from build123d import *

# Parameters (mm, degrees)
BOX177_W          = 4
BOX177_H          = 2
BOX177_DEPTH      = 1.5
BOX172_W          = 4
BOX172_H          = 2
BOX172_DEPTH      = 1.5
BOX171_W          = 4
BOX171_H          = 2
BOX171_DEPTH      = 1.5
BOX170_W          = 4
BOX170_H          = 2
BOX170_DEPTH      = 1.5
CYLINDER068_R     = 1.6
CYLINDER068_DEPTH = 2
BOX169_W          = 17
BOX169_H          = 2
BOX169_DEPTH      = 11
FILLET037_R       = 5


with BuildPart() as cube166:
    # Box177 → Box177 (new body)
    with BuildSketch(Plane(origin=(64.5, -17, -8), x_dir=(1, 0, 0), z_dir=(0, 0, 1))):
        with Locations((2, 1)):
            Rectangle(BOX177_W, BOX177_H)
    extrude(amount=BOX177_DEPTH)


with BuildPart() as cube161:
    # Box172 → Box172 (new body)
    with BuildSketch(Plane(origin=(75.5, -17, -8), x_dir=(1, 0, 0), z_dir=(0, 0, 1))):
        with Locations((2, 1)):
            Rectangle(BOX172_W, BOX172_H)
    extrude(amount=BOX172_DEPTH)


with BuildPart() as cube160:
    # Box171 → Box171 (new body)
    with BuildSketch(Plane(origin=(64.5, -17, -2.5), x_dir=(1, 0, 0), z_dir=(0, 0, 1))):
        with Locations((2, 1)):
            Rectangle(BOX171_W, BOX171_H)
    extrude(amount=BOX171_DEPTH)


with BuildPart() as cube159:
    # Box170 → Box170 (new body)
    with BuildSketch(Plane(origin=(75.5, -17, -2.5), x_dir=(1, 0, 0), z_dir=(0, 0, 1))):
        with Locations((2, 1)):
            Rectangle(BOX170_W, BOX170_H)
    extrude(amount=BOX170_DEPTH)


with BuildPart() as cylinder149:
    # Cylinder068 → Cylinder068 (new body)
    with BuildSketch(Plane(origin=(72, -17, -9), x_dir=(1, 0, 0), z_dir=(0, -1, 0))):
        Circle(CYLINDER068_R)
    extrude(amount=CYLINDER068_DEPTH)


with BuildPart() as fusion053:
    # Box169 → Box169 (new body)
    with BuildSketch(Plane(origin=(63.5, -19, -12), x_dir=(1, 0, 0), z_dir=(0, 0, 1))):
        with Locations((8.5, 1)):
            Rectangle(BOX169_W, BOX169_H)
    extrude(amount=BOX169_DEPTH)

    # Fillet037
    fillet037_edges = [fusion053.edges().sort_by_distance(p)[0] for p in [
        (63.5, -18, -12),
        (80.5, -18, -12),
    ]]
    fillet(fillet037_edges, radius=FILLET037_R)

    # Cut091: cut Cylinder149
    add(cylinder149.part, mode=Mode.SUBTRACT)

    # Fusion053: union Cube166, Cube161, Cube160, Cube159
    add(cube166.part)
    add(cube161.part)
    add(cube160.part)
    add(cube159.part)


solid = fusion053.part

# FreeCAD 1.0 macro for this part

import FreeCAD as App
import Part
import Sketcher
from FreeCAD import Vector
Q = App.Units.Quantity


def edges_at(feature, points):
    """Names of the edges that pass closest to the given points."""
    edges = feature.Shape.Edges
    near = lambda p: min(range(len(edges)), key=lambda i: edges[i].distToShape(Part.Vertex(*p))[0])
    return sorted({f"Edge{near(p) + 1}" for p in points})


def add_polygon(sketch, points):
    """Adds a closed chain of lines whose ends are joined by coincident constraints."""
    first, n = sketch.GeometryCount, len(points)
    for a, b in zip(points, points[1:] + points[:1]):
        sketch.addGeometry(Part.LineSegment(App.Vector(*a, 0), App.Vector(*b, 0)), False)
    for i in range(n):
        sketch.addConstraint(Sketcher.Constraint("Coincident", first + i, 2, first + (i + 1) % n, 1))

doc = App.newDocument("Part")
body = doc.addObject("PartDesign::Body", "Body")

sketch1 = doc.addObject("Sketcher::SketchObject", "Sketch")
body.addObject(sketch1)
sketch1.AttachmentSupport = (doc.XY_Plane, [""])
sketch1.MapMode = "FlatFace"
sketch1.AttachmentOffset = App.Placement(Vector(0, 0, -8), App.Rotation())
add_polygon(sketch1, [(64.5, -15), (64.5, -17), (68.5, -17), (68.5, -15)])
sketch1.addConstraint([
    Sketcher.Constraint("Vertical", 0),
    Sketcher.Constraint("Horizontal", 1),
    Sketcher.Constraint("Vertical", 2),
    Sketcher.Constraint("Horizontal", 3),
    Sketcher.Constraint("DistanceX", 1, 1, 1, 2, Q("4 mm")),
    Sketcher.Constraint("DistanceY", 0, 2, 0, 1, Q("2 mm")),
    Sketcher.Constraint("DistanceY", 0, 2, -1, 1, Q("17 mm")),
    Sketcher.Constraint("DistanceX", -1, 1, 0, 2, Q("64.5 mm")),
])
pad1 = doc.addObject("PartDesign::Pad", "Pad")
body.addObject(pad1)
pad1.Profile = sketch1
pad1.Length = 1.5
body2 = doc.addObject("PartDesign::Body", "Body001")

sketch2 = doc.addObject("Sketcher::SketchObject", "Sketch001")
body2.addObject(sketch2)
sketch2.AttachmentSupport = (doc.getObject("XY_Plane001"), [""])
sketch2.MapMode = "FlatFace"
sketch2.AttachmentOffset = App.Placement(Vector(0, 0, -8), App.Rotation())
add_polygon(sketch2, [(75.5, -15), (75.5, -17), (79.5, -17), (79.5, -15)])
sketch2.addConstraint([
    Sketcher.Constraint("Vertical", 0),
    Sketcher.Constraint("Horizontal", 1),
    Sketcher.Constraint("Vertical", 2),
    Sketcher.Constraint("Horizontal", 3),
    Sketcher.Constraint("DistanceX", 1, 1, 1, 2, Q("4 mm")),
    Sketcher.Constraint("DistanceY", 0, 2, 0, 1, Q("2 mm")),
    Sketcher.Constraint("DistanceY", 0, 2, -1, 1, Q("17 mm")),
    Sketcher.Constraint("DistanceX", -1, 1, 0, 2, Q("75.5 mm")),
])
pad2 = doc.addObject("PartDesign::Pad", "Pad001")
body2.addObject(pad2)
pad2.Profile = sketch2
pad2.Length = 1.5
body3 = doc.addObject("PartDesign::Body", "Body002")

sketch3 = doc.addObject("Sketcher::SketchObject", "Sketch002")
body3.addObject(sketch3)
sketch3.AttachmentSupport = (doc.getObject("XY_Plane002"), [""])
sketch3.MapMode = "FlatFace"
sketch3.AttachmentOffset = App.Placement(Vector(0, 0, -2.5), App.Rotation())
add_polygon(sketch3, [(64.5, -15), (64.5, -17), (68.5, -17), (68.5, -15)])
sketch3.addConstraint([
    Sketcher.Constraint("Vertical", 0),
    Sketcher.Constraint("Horizontal", 1),
    Sketcher.Constraint("Vertical", 2),
    Sketcher.Constraint("Horizontal", 3),
    Sketcher.Constraint("DistanceX", 1, 1, 1, 2, Q("4 mm")),
    Sketcher.Constraint("DistanceY", 0, 2, 0, 1, Q("2 mm")),
    Sketcher.Constraint("DistanceY", 0, 2, -1, 1, Q("17 mm")),
    Sketcher.Constraint("DistanceX", -1, 1, 0, 2, Q("64.5 mm")),
])
pad3 = doc.addObject("PartDesign::Pad", "Pad002")
body3.addObject(pad3)
pad3.Profile = sketch3
pad3.Length = 1.5
body4 = doc.addObject("PartDesign::Body", "Body003")

sketch4 = doc.addObject("Sketcher::SketchObject", "Sketch003")
body4.addObject(sketch4)
sketch4.AttachmentSupport = (doc.getObject("XY_Plane003"), [""])
sketch4.MapMode = "FlatFace"
sketch4.AttachmentOffset = App.Placement(Vector(0, 0, -2.5), App.Rotation())
add_polygon(sketch4, [(75.5, -15), (75.5, -17), (79.5, -17), (79.5, -15)])
sketch4.addConstraint([
    Sketcher.Constraint("Vertical", 0),
    Sketcher.Constraint("Horizontal", 1),
    Sketcher.Constraint("Vertical", 2),
    Sketcher.Constraint("Horizontal", 3),
    Sketcher.Constraint("DistanceX", 1, 1, 1, 2, Q("4 mm")),
    Sketcher.Constraint("DistanceY", 0, 2, 0, 1, Q("2 mm")),
    Sketcher.Constraint("DistanceY", 0, 2, -1, 1, Q("17 mm")),
    Sketcher.Constraint("DistanceX", -1, 1, 0, 2, Q("75.5 mm")),
])
pad4 = doc.addObject("PartDesign::Pad", "Pad003")
body4.addObject(pad4)
pad4.Profile = sketch4
pad4.Length = 1.5
body5 = doc.addObject("PartDesign::Body", "Body004")

sketch5 = doc.addObject("Sketcher::SketchObject", "Sketch004")
body5.addObject(sketch5)
sketch5.AttachmentSupport = (doc.getObject("XZ_Plane004"), [""])
sketch5.MapMode = "FlatFace"
sketch5.AttachmentOffset = App.Placement(Vector(0, 0, 17), App.Rotation())
sketch5.addGeometry(Part.Circle(Vector(72, -9, 0), Vector(0, 0, 1), 1.6), False)
sketch5.addConstraint([
    Sketcher.Constraint("Diameter", 0, Q("3.2 mm")),
    Sketcher.Constraint("DistanceX", -1, 1, 0, 3, Q("72 mm")),
    Sketcher.Constraint("DistanceY", 0, 3, -1, 1, Q("9 mm")),
])
pad5 = doc.addObject("PartDesign::Pad", "Pad004")
body5.addObject(pad5)
pad5.Profile = sketch5
pad5.Length = 2
body6 = doc.addObject("PartDesign::Body", "Body005")

sketch6 = doc.addObject("Sketcher::SketchObject", "Sketch005")
body6.addObject(sketch6)
sketch6.AttachmentSupport = (doc.getObject("XY_Plane005"), [""])
sketch6.MapMode = "FlatFace"
sketch6.AttachmentOffset = App.Placement(Vector(0, 0, -12), App.Rotation())
add_polygon(sketch6, [(63.5, -17), (63.5, -19), (80.5, -19), (80.5, -17)])
sketch6.addConstraint([
    Sketcher.Constraint("Vertical", 0),
    Sketcher.Constraint("Horizontal", 1),
    Sketcher.Constraint("Vertical", 2),
    Sketcher.Constraint("Horizontal", 3),
    Sketcher.Constraint("DistanceX", 1, 1, 1, 2, Q("17 mm")),
    Sketcher.Constraint("DistanceY", 0, 2, 0, 1, Q("2 mm")),
    Sketcher.Constraint("DistanceY", 0, 2, -1, 1, Q("19 mm")),
    Sketcher.Constraint("DistanceX", -1, 1, 0, 2, Q("63.5 mm")),
])
pad6 = doc.addObject("PartDesign::Pad", "Pad005")
body6.addObject(pad6)
pad6.Profile = sketch6
pad6.Length = 11
doc.recompute()

fillet = doc.addObject("PartDesign::Fillet", "Fillet")
body6.addObject(fillet)
fillet.Base = (pad6, edges_at(pad6, [(63.5, -18, -12), (80.5, -18, -12)]))
fillet.Radius = 5
doc.recompute()

boolean = doc.addObject("PartDesign::Boolean", "Boolean")
body6.addObject(boolean)
boolean.Type = "Cut"
boolean.addObjects([body5])
doc.recompute()

boolean2 = doc.addObject("PartDesign::Boolean", "Boolean001")
body6.addObject(boolean2)
boolean2.Type = "Fuse"
boolean2.addObjects([body])
doc.recompute()

boolean3 = doc.addObject("PartDesign::Boolean", "Boolean002")
body6.addObject(boolean3)
boolean3.Type = "Fuse"
boolean3.addObjects([body2])
doc.recompute()

boolean4 = doc.addObject("PartDesign::Boolean", "Boolean003")
body6.addObject(boolean4)
boolean4.Type = "Fuse"
boolean4.addObjects([body3])
doc.recompute()

boolean5 = doc.addObject("PartDesign::Boolean", "Boolean004")
body6.addObject(boolean5)
boolean5.Type = "Fuse"
boolean5.addObjects([body4])

doc.recompute()
